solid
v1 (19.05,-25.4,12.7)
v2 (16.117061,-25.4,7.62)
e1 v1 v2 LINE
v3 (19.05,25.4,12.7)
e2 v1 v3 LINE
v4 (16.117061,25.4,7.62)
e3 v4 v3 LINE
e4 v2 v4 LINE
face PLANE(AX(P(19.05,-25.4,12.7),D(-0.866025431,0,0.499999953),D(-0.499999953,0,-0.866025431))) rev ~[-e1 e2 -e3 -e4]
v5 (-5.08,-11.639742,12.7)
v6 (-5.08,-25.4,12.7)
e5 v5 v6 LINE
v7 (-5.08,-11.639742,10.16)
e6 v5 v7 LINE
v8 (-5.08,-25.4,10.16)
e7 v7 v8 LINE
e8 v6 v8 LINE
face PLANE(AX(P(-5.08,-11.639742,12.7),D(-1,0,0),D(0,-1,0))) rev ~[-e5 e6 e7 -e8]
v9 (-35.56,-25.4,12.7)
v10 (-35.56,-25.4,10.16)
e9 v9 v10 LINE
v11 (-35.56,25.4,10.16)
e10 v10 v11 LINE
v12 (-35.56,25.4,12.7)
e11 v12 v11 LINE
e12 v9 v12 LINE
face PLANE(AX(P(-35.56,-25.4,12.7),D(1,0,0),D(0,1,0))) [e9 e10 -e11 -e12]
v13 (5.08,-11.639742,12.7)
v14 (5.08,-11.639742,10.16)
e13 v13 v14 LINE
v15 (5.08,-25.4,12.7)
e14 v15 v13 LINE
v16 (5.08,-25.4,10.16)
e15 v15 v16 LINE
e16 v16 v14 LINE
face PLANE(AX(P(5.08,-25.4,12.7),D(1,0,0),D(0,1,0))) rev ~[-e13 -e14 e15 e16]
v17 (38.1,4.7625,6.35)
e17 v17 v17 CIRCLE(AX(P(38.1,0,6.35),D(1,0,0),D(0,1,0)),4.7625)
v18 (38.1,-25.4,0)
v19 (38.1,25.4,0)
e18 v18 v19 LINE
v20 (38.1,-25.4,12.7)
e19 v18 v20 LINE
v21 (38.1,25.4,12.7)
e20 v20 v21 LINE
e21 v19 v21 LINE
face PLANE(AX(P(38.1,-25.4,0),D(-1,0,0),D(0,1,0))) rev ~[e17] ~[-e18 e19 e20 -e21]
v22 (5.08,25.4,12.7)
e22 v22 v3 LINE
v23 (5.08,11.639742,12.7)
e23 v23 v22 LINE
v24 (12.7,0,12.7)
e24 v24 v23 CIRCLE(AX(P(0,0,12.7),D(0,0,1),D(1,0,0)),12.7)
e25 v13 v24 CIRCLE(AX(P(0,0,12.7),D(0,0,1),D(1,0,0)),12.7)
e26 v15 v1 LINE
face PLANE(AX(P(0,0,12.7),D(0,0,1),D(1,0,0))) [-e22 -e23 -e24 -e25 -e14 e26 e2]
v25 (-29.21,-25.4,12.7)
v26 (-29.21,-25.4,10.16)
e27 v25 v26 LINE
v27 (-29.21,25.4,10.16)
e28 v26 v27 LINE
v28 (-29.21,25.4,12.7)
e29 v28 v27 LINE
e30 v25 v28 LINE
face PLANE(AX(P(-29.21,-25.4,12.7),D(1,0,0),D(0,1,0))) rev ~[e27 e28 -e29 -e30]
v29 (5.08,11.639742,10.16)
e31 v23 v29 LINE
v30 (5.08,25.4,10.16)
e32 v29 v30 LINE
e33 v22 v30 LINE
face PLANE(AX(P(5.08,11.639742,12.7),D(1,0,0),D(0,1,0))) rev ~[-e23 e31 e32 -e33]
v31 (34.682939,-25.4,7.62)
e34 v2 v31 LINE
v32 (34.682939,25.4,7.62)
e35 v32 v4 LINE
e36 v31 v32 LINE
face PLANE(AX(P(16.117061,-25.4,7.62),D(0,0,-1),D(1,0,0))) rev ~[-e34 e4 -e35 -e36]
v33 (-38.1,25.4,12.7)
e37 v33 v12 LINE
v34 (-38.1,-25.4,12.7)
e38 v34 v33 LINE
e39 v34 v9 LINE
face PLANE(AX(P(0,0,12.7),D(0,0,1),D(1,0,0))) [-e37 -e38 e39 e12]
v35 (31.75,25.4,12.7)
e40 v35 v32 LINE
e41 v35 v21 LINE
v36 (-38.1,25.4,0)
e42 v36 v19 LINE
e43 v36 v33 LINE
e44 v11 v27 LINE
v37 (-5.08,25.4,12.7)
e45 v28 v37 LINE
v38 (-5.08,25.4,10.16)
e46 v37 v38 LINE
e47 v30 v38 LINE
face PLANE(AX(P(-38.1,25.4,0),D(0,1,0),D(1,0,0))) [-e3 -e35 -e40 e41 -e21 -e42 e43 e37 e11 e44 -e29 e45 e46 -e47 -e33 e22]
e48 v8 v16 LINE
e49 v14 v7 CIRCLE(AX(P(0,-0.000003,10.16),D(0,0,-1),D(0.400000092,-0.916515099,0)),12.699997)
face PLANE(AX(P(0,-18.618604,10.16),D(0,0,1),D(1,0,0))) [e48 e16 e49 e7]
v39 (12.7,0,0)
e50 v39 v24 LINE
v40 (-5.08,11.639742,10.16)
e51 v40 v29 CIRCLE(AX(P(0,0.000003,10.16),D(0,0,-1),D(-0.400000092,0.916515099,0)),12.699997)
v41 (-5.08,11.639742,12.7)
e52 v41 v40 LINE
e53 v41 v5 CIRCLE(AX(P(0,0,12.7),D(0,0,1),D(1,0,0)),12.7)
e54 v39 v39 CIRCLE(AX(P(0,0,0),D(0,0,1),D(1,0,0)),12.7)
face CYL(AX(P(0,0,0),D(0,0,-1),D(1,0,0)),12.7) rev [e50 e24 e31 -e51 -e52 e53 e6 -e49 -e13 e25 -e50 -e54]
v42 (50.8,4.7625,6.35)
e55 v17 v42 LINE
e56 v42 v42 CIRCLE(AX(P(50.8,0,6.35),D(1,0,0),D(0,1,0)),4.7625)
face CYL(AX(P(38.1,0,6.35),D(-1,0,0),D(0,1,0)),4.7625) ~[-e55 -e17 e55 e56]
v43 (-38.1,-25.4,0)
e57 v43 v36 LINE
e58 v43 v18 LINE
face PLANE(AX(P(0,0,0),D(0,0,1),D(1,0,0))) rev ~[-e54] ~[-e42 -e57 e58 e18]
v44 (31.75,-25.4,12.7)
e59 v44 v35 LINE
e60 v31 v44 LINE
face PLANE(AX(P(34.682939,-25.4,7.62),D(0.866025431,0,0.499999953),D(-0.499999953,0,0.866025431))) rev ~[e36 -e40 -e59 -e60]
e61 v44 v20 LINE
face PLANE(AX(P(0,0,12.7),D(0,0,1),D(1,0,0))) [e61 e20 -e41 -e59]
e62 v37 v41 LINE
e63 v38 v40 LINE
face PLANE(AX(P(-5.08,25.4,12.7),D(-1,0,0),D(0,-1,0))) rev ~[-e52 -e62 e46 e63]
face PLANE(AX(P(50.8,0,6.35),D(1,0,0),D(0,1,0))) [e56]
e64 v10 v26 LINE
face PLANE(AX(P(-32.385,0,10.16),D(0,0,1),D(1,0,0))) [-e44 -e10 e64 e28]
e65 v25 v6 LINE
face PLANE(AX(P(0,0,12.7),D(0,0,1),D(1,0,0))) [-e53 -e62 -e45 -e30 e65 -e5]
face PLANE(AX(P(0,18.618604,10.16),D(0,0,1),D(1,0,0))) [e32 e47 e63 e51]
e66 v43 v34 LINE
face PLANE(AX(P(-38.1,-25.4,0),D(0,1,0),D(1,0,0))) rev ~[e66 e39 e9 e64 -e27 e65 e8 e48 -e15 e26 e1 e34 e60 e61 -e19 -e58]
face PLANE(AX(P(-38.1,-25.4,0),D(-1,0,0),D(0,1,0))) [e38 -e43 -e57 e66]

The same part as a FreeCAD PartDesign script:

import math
import FreeCAD as App
import Part
import Sketcher

V = App.Vector
Q = App.Units.Quantity


def add_polygon(sketch, points):
    """Adds a closed chain of lines whose ends are joined by coincident constraints."""
    first, n = sketch.GeometryCount, len(points)
    for a, b in zip(points, points[1:] + points[:1]):
        sketch.addGeometry(Part.LineSegment(App.Vector(*a, 0), App.Vector(*b, 0)), False)
    for i in range(n):
        sketch.addConstraint(Sketcher.Constraint("Coincident", first + i, 2, first + (i + 1) % n, 1))

doc = App.newDocument("Part")
body = doc.addObject("PartDesign::Body", "Body")

# Sketch on XY plane
sketch1 = doc.addObject("Sketcher::SketchObject", "Sketch")
body.addObject(sketch1)
sketch1.AttachmentSupport = (doc.XY_Plane, [""])
sketch1.MapMode = "FlatFace"
add_polygon(sketch1, [(-38, 25), (-38, -25), (38, -25), (38, 25)])  # lines 0-3
sketch1.addGeometry(Part.Circle(V(0, 0, 0), V(0, 0, 1), 13), False)  # 4
sketch1.addConstraint([
    Sketcher.Constraint("Vertical", 0),
    Sketcher.Constraint("Horizontal", 1),
    Sketcher.Constraint("Vertical", 2),
    Sketcher.Constraint("Horizontal", 3),
    Sketcher.Constraint("Coincident", 4, 3, -1, 1),
    Sketcher.Constraint("Symmetric", 0, 2, 2, 2, -1, 1),
    Sketcher.Constraint("Diameter", 4, Q("1 in")),
    Sketcher.Constraint("DistanceX", 1, 1, 1, 2, Q("3 in")),
    Sketcher.Constraint("DistanceY", 0, 2, 0, 1, Q("2 in")),
])
pad1 = doc.addObject("PartDesign::Pad", "Pad")
body.addObject(pad1)
pad1.Profile = sketch1
pad1.Length = Q("0.5 in")

# Sketch on XY plane
sketch2 = doc.addObject("Sketcher::SketchObject", "Sketch001")
body.addObject(sketch2)
sketch2.AttachmentSupport = (doc.XY_Plane, [""])
sketch2.MapMode = "FlatFace"
sketch2.AttachmentOffset = App.Placement(V(0, 0, 0.5 * 25.4), App.Rotation())
add_polygon(sketch2, [(-36, 25), (-36, -25), (-29, -25), (-29, 25)])  # lines 0-3
sketch2.addGeometry(Part.LineSegment(V(-5, -12, 0), V(-5, -25, 0)), False)  # 4
sketch2.addGeometry(Part.LineSegment(V(-5, -25, 0), V(5, -25, 0)), False)  # 5
sketch2.addGeometry(Part.LineSegment(V(5, -25, 0), V(5, -12, 0)), False)  # 6
sketch2.addGeometry(Part.ArcOfCircle(Part.Circle(V(0, 0, 0), V(0, 0, 1), 13), math.radians(-114), math.radians(-66)), False)  # 7
sketch2.addGeometry(Part.LineSegment(V(5, 25, 0), V(-5, 25, 0)), False)  # 8
sketch2.addGeometry(Part.LineSegment(V(-5, 25, 0), V(-5, 12, 0)), False)  # 9
sketch2.addGeometry(Part.ArcOfCircle(Part.Circle(V(0, 0, 0), V(0, 0, 1), 13), math.radians(66), math.radians(114)), False)  # 10
sketch2.addGeometry(Part.LineSegment(V(5, 12, 0), V(5, 25, 0)), False)  # 11
sketch2.addConstraint([
    Sketcher.Constraint("Coincident", 4, 2, 5, 1),
    Sketcher.Constraint("Coincident", 5, 2, 6, 1),
    Sketcher.Constraint("Coincident", 6, 2, 7, 2),
    Sketcher.Constraint("Coincident", 7, 1, 4, 1),
    Sketcher.Constraint("Coincident", 8, 2, 9, 1),
    Sketcher.Constraint("Coincident", 9, 2, 10, 2),
    Sketcher.Constraint("Coincident", 10, 1, 11, 1),
    Sketcher.Constraint("Coincident", 11, 2, 8, 1),
    Sketcher.Constraint("Vertical", 0),
    Sketcher.Constraint("Horizontal", 1),
    Sketcher.Constraint("Vertical", 2),
    Sketcher.Constraint("Horizontal", 3),
    Sketcher.Constraint("Vertical", 4),
    Sketcher.Constraint("Horizontal", 5),
    Sketcher.Constraint("Vertical", 6),
    Sketcher.Constraint("Horizontal", 8),
    Sketcher.Constraint("Vertical", 9),
    Sketcher.Constraint("Vertical", 11),
    Sketcher.Constraint("Coincident", 7, 3, -1, 1),
    Sketcher.Constraint("Coincident", 10, 3, -1, 1),
    Sketcher.Constraint("Equal", 7, 10),
    Sketcher.Constraint("Symmetric", 5, 2, 8, 2, -1, 1),
    Sketcher.Constraint("Horizontal", 1, 2, 4, 2),
    Sketcher.Constraint("Horizontal", 6, 2, 7, 1),
    Sketcher.Constraint("Horizontal", 3, 2, 8, 2),
    Sketcher.Constraint("Horizontal", 9, 2, 10, 1),
    Sketcher.Constraint("Radius", 7, Q("0.4999999 in")),
    Sketcher.Constraint("DistanceY", 0, 2, 0, 1, Q("2 in")),
    Sketcher.Constraint("DistanceX", 5, 1, 5, 2, Q("0.4 in")),
    Sketcher.Constraint("DistanceX", 1, 1, 1, 2, Q("0.25 in")),
    Sketcher.Constraint("DistanceX", 0, 2, -1, 1, Q("1.4 in")),
])
pocket1 = doc.addObject("PartDesign::Pocket", "Pocket")
body.addObject(pocket1)
pocket1.Profile = sketch2
pocket1.Length = Q("0.1 in")

# Sketch on XZ plane
sketch3 = doc.addObject("Sketcher::SketchObject", "Sketch002")
body.addObject(sketch3)
sketch3.AttachmentSupport = (doc.XZ_Plane, [""])
sketch3.MapMode = "FlatFace"
sketch3.AttachmentOffset = App.Placement(V(0, 0, 1 * 25.4), App.Rotation())
add_polygon(sketch3, [(32, 13), (19, 13), (16, 8), (35, 8)])  # lines 0-3
sketch3.addConstraint([
    Sketcher.Constraint("Horizontal", 0),
    Sketcher.Constraint("Horizontal", 2),
    Sketcher.Constraint("Equal", 1, 3),
    Sketcher.Constraint("DistanceX", 0, 2, 0, 1, Q("0.5 in")),
    Sketcher.Constraint("Angle", 1, Q("-119.999997 deg")),
    Sketcher.Constraint("DistanceY", -1, 1, 0, 2, Q("0.5 in")),
    Sketcher.Constraint("DistanceY", -1, 1, 1, 2, Q("0.3 in")),
    Sketcher.Constraint("DistanceX", -1, 1, 0, 2, Q("0.75 in")),
])
pocket2 = doc.addObject("PartDesign::Pocket", "Pocket001")
body.addObject(pocket2)
pocket2.Profile = sketch3
pocket2.Type = "ThroughAll"

# Sketch on YZ plane
sketch4 = doc.addObject("Sketcher::SketchObject", "Sketch003")
body.addObject(sketch4)
sketch4.AttachmentSupport = (doc.YZ_Plane, [""])
sketch4.MapMode = "FlatFace"
sketch4.AttachmentOffset = App.Placement(V(0, 0, 1.5 * 25.4), App.Rotation())
sketch4.addGeometry(Part.Circle(V(0, 6.3, 0), V(0, 0, 1), 4.8), False)
sketch4.addConstraint([
    Sketcher.Constraint("PointOnObject", 0, 3, -2),
    Sketcher.Constraint("Diameter", 0, Q("0.375 in")),
    Sketcher.Constraint("DistanceY", -1, 1, 0, 3, Q("0.25 in")),
])
pad2 = doc.addObject("PartDesign::Pad", "Pad001")
body.addObject(pad2)
pad2.Profile = sketch4
pad2.Length = Q("0.5 in")

doc.recompute()
